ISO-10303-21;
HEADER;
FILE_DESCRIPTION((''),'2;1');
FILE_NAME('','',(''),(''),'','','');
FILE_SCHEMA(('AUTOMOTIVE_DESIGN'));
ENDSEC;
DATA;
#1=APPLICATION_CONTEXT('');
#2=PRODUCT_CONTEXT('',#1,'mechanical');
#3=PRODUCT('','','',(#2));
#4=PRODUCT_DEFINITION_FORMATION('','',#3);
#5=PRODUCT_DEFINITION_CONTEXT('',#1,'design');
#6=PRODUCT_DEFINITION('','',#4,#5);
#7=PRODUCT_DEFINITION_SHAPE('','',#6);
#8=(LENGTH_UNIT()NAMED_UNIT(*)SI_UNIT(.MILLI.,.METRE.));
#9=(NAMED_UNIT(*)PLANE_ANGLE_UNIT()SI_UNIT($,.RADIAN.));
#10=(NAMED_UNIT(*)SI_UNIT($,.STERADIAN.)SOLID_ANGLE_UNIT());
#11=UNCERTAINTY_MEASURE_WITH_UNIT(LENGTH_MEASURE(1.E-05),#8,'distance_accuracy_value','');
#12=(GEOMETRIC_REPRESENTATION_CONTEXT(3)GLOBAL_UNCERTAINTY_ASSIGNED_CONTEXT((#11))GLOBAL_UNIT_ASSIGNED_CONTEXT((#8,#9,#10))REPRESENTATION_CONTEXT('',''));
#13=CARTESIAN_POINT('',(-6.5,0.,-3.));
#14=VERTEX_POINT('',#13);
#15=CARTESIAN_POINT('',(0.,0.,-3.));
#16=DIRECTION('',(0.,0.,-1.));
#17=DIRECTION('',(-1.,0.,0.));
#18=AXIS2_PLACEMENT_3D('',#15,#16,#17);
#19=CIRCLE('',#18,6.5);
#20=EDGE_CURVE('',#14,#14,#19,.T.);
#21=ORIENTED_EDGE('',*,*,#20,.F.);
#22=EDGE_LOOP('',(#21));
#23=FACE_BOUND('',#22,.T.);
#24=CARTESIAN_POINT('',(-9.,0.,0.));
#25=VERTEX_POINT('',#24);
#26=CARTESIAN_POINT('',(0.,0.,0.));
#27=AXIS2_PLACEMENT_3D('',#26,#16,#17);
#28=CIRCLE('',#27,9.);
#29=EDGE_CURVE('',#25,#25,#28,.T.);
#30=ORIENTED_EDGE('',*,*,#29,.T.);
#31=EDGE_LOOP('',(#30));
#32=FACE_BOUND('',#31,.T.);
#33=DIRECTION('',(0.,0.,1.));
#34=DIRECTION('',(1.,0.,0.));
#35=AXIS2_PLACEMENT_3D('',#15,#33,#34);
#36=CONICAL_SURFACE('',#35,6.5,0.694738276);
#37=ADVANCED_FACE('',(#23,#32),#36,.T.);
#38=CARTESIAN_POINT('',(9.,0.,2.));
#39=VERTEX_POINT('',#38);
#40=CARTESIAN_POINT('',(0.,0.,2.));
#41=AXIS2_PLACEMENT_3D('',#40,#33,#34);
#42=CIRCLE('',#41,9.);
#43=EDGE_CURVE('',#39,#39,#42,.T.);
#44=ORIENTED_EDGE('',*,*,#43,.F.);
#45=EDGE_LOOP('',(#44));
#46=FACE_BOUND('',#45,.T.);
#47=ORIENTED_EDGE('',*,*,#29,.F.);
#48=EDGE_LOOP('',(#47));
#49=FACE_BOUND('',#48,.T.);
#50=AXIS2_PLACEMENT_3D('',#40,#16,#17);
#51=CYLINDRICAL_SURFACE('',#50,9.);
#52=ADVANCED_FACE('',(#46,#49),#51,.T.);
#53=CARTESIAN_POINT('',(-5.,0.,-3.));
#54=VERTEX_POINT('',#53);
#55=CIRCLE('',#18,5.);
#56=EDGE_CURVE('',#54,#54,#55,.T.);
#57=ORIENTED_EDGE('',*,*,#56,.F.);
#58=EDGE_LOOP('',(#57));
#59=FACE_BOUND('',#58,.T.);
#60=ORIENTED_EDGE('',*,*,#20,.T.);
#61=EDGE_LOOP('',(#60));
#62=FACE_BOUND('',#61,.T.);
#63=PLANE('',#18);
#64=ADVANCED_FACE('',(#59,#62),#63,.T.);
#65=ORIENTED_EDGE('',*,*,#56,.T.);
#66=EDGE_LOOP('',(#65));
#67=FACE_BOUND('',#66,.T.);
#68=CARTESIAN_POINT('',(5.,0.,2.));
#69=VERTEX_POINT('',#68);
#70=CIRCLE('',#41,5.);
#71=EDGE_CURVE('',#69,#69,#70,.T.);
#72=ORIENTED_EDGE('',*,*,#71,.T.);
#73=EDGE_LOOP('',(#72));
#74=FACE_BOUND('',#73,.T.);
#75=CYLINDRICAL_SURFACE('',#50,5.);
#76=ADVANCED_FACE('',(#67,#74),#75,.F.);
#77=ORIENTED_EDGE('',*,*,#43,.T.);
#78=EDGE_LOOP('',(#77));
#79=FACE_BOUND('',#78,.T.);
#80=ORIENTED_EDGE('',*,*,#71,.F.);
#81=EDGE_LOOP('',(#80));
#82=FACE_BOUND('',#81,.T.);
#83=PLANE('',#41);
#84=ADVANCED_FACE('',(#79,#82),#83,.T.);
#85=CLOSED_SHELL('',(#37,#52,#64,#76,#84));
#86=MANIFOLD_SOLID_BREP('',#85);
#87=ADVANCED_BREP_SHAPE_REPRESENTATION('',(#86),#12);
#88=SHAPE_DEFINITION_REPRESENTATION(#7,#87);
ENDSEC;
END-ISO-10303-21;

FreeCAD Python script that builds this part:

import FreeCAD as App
import Part
import Sketcher

doc = App.newDocument("Part")
params = doc.addObject("Spreadsheet::Sheet", "Params")
for row, (alias, value) in enumerate([
    ("sketch1_diameter", "18 mm"),
    ("sketch1_diameter2", "10 mm"),
    ("pad1_length", "2 mm"),
    ("sketch2_diameter", "18 mm"),
    ("sketch3_diameter", "13 mm"),
    ("sketch4_diameter", "10 mm"),
    ("pocket1_length", "5 mm"),
], start=1):
    params.set(f"A{row}", alias)
    params.set(f"B{row}", "=" + value)
    params.setAlias(f"B{row}", alias)

body = doc.addObject("PartDesign::Body", "Body")

sketch1 = body.newObject("Sketcher::SketchObject", "Sketch")
sketch1.AttachmentSupport = (doc.getObject("XY_Plane"), [""])
sketch1.MapMode = "FlatFace"
sketch1.addGeometry(Part.Circle(App.Vector(0, 0, 0), App.Vector(0, 0, 1), 9), False)
sketch1.addGeometry(Part.Circle(App.Vector(0, 0, 0), App.Vector(0, 0, 1), 5), False)
sketch1.addConstraint(Sketcher.Constraint("Coincident", 0, 3, -1, 1))
sketch1.addConstraint(Sketcher.Constraint("Coincident", 1, 3, -1, 1))
sketch1.addConstraint(Sketcher.Constraint("Diameter", 0, 18.0))
sketch1.addConstraint(Sketcher.Constraint("Diameter", 1, 10.0))
sketch1.setExpression("Constraints[2]", "Params.sketch1_diameter")
sketch1.setExpression("Constraints[3]", "Params.sketch1_diameter2")
pad1 = body.newObject("PartDesign::Pad", "Pad")
pad1.Profile = sketch1
pad1.setExpression("Length", "Params.pad1_length")

sketch2 = body.newObject("Sketcher::SketchObject", "Sketch001")
sketch2.AttachmentSupport = (doc.getObject("XY_Plane"), [""])
sketch2.MapMode = "FlatFace"
sketch2.addGeometry(Part.Circle(App.Vector(0, 0, 0), App.Vector(0, 0, 1), 9), False)
sketch2.addConstraint(Sketcher.Constraint("Coincident", 0, 3, -1, 1))
sketch2.addConstraint(Sketcher.Constraint("Diameter", 0, 18.0))
sketch2.setExpression("Constraints[1]", "Params.sketch2_diameter")

sketch3 = body.newObject("Sketcher::SketchObject", "Sketch002")
sketch3.AttachmentSupport = (doc.getObject("XY_Plane"), [""])
sketch3.MapMode = "FlatFace"
sketch3.AttachmentOffset = App.Placement(App.Vector(0, 0, -3), App.Rotation())
sketch3.addGeometry(Part.Circle(App.Vector(0, 0, 0), App.Vector(0, 0, 1), 6.5), False)
sketch3.addConstraint(Sketcher.Constraint("Coincident", 0, 3, -1, 1))
sketch3.addConstraint(Sketcher.Constraint("Diameter", 0, 13.0))
sketch3.setExpression("Constraints[1]", "Params.sketch3_diameter")

additiveloft = body.newObject("PartDesign::AdditiveLoft", "AdditiveLoft")
additiveloft.Profile = sketch2
additiveloft.Sections = [sketch3]

sketch4 = body.newObject("Sketcher::SketchObject", "Sketch003")
sketch4.AttachmentSupport = (doc.getObject("XY_Plane"), [""])
sketch4.MapMode = "FlatFace"
sketch4.AttachmentOffset = App.Placement(App.Vector(0, 0, -3), App.Rotation())
sketch4.addGeometry(Part.Circle(App.Vector(0, 0, 0), App.Vector(0, 0, 1), 5), False)
sketch4.addConstraint(Sketcher.Constraint("Coincident", 0, 3, -1, 1))
sketch4.addConstraint(Sketcher.Constraint("Diameter", 0, 10.0))
sketch4.setExpression("Constraints[1]", "Params.sketch4_diameter")
pocket1 = body.newObject("PartDesign::Pocket", "Pocket")
pocket1.Profile = sketch4
pocket1.setExpression("Length", "Params.pocket1_length")
pocket1.Reversed = True

doc.recompute()
